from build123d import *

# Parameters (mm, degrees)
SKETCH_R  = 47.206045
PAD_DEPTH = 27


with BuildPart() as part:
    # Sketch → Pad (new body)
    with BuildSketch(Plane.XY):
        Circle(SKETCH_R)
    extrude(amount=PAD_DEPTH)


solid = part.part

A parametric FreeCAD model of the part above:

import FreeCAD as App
import Part
import Sketcher
from FreeCAD import Vector
Q = App.Units.Quantity

doc = App.newDocument("Part")
body = doc.addObject("PartDesign::Body", "Body")

sketch1 = doc.addObject("Sketcher::SketchObject", "Sketch")
body.addObject(sketch1)
sketch1.AttachmentSupport = (doc.XY_Plane, [""])
sketch1.MapMode = "FlatFace"
sketch1.addGeometry(Part.Circle(Vector(0, 0, 0), Vector(0, 0, 1), 47), False)
sketch1.addConstraint(Sketcher.Constraint("Coincident", 0, 3, -1, 1))
sketch1.addConstraint(Sketcher.Constraint("Diameter", 0, Q("94.41209 mm")))
pad1 = doc.addObject("PartDesign::Pad", "Pad")
body.addObject(pad1)
pad1.Profile = sketch1
pad1.Length = 27

doc.recompute()
